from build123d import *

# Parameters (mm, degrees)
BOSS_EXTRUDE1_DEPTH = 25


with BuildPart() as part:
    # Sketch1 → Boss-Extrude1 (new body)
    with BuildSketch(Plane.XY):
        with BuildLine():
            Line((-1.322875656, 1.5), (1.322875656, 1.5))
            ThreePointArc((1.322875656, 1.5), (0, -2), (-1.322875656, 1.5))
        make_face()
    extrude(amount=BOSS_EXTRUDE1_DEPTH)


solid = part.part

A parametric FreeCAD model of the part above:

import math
import FreeCAD as App
import Part
import Sketcher

V = App.Vector

doc = App.newDocument("Part")
body = doc.addObject("PartDesign::Body", "Body")

# Sketch on XY plane
sketch1 = doc.addObject("Sketcher::SketchObject", "Sketch")
body.addObject(sketch1)
sketch1.AttachmentSupport = (doc.XY_Plane, [""])
sketch1.MapMode = "FlatFace"
sketch1.addGeometry(Part.LineSegment(V(1.3, 1.5, 0), V(-1.3, 1.5, 0)), False)
sketch1.addGeometry(Part.ArcOfCircle(Part.Circle(V(0, 0, 0), V(0, 0, 1), 2), math.radians(131), math.radians(409)), False)
sketch1.addConstraint(Sketcher.Constraint("Coincident", 0, 1, 1, 2))
sketch1.addConstraint(Sketcher.Constraint("Coincident", 1, 1, 0, 2))
sketch1.addConstraint(Sketcher.Constraint("Horizontal", 0))
sketch1.addConstraint(Sketcher.Constraint("Coincident", 1, 3, -1, 1))
sketch1.addConstraint(Sketcher.Constraint("Radius", 1, 2.0))
sketch1.addConstraint(Sketcher.Constraint("DistanceY", -1, 1, 0, 1, 1.5))
pad1 = doc.addObject("PartDesign::Pad", "Pad")
body.addObject(pad1)
pad1.Profile = sketch1
pad1.Length = 25

doc.recompute()
